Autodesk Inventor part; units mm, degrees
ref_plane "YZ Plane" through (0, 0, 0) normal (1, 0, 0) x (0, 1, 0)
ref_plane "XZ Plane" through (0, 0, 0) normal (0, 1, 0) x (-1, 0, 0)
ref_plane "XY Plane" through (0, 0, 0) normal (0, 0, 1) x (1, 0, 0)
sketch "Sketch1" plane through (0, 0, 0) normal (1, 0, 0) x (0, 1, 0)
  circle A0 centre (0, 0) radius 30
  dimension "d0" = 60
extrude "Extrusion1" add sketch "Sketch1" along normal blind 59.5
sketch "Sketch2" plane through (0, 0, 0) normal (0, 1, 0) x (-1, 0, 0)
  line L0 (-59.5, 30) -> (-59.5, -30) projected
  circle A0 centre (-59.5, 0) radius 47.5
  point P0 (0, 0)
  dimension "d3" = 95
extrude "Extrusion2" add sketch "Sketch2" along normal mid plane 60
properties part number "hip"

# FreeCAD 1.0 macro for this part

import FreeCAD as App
import Part
import Sketcher
from FreeCAD import Vector

doc = App.newDocument("Part")
params = doc.addObject("Spreadsheet::Sheet", "Params")
for row, (alias, value) in enumerate([
    ("sketch1_diameter", "60 mm"),
    ("pad1_length", "59.5 mm"),
    ("sketch2_diameter", "95 mm"),
    ("pad2_length", "60 mm"),
], start=1):
    params.set(f"A{row}", alias)
    params.set(f"B{row}", "=" + value)
    params.setAlias(f"B{row}", alias)

body = doc.addObject("PartDesign::Body", "Body")

sketch1 = body.newObject("Sketcher::SketchObject", "Sketch")
sketch1.AttachmentSupport = (doc.getObject("YZ_Plane"), [""])
sketch1.MapMode = "FlatFace"
sketch1.addGeometry(Part.Circle(Vector(0, 0, 0), Vector(0, 0, 1), 30), False)
sketch1.addConstraint([
    Sketcher.Constraint("Coincident", 0, 3, -1, 1),
    Sketcher.Constraint("Diameter", 0, 60.0),
])
sketch1.setExpression("Constraints[1]", "Params.sketch1_diameter")
pad1 = body.newObject("PartDesign::Pad", "Pad")
pad1.Profile = sketch1
pad1.setExpression("Length", "Params.pad1_length")

sketch2 = body.newObject("Sketcher::SketchObject", "Sketch001")
sketch2.AttachmentSupport = (doc.getObject("XZ_Plane"), [""])
sketch2.MapMode = "FlatFace"
sketch2.addGeometry(Part.Circle(Vector(60, 0, 0), Vector(0, 0, 1), 48), False)
sketch2.addConstraint([
    Sketcher.Constraint("PointOnObject", 0, 3, -1),
    Sketcher.Constraint("Diameter", 0, 95.0),
    Sketcher.Constraint("DistanceX", -1, 1, 0, 3, 59.5),
])
sketch2.setExpression("Constraints[1]", "Params.sketch2_diameter")
pad2 = body.newObject("PartDesign::Pad", "Pad001")
pad2.Profile = sketch2
pad2.setExpression("Length", "Params.pad2_length")
pad2.Midplane = True

doc.recompute()
